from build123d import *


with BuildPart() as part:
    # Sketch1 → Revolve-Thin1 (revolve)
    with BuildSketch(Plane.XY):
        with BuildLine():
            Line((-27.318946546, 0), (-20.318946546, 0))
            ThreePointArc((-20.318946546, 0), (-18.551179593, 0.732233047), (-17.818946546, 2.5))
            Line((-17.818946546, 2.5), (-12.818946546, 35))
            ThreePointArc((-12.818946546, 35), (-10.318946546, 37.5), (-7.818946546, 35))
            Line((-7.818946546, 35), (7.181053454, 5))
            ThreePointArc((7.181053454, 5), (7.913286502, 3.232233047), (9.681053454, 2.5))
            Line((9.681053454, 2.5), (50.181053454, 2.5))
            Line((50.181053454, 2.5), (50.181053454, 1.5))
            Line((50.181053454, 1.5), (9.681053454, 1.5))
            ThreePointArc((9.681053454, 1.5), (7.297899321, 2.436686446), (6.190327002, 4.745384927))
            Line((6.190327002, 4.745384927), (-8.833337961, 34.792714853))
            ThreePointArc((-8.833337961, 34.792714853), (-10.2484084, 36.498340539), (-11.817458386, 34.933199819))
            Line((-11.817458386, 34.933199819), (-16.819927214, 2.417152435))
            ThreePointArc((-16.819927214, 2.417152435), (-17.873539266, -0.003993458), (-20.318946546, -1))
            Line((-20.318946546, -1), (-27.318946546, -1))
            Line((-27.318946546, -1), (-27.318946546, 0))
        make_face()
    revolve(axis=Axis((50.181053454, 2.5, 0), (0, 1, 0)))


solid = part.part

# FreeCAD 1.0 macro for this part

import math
import FreeCAD as App
import Part
import Sketcher

V = App.Vector
Q = App.Units.Quantity

doc = App.newDocument("Part")
body = doc.addObject("PartDesign::Body", "Body")

sketch1 = doc.addObject("Sketcher::SketchObject", "Sketch")
body.addObject(sketch1)
sketch1.AttachmentSupport = (doc.XY_Plane, [""])
sketch1.MapMode = "FlatFace"
sketch1.addGeometry([
    Part.LineSegment(V(-20.3, 0, 0), V(-27.3, 0, 0)),
    Part.LineSegment(V(-27.3, 0, 0), V(-27.3, -1, 0)),
    Part.LineSegment(V(-27.3, -1, 0), V(-20.3, -1, 0)),
    Part.ArcOfCircle(Part.Circle(V(-20.3, 2.5, 0), V(0, 0, 1), 3.5), math.radians(-90), math.radians(-1)),
    Part.LineSegment(V(-16.8, 2.4, 0), V(-11.8, 34.9, 0)),
    Part.ArcOfCircle(Part.Circle(V(-10.3, 35, 0), V(0, 0, 1), 1.5), math.radians(-8), math.radians(183)),
    Part.LineSegment(V(-8.8, 34.8, 0), V(6.2, 4.7, 0)),
    Part.ArcOfCircle(Part.Circle(V(9.7, 5, 0), V(0, 0, 1), 3.5), math.radians(-176), math.radians(-90)),
    Part.LineSegment(V(9.7, 1.5, 0), V(50.2, 1.5, 0)),
    Part.LineSegment(V(50.2, 1.5, 0), V(50.2, 2.5, 0)),
    Part.LineSegment(V(50.2, 2.5, 0), V(9.7, 2.5, 0)),
    Part.ArcOfCircle(Part.Circle(V(9.7, 5, 0), V(0, 0, 1), 2.5), math.radians(-180), math.radians(-90)),
    Part.LineSegment(V(7.2, 5, 0), V(-7.8, 35, 0)),
    Part.ArcOfCircle(Part.Circle(V(-10.3, 35, 0), V(0, 0, 1), 2.5), math.radians(0), math.radians(180)),
    Part.LineSegment(V(-12.8, 35, 0), V(-17.8, 2.5, 0)),
    Part.ArcOfCircle(Part.Circle(V(-20.3, 2.5, 0), V(0, 0, 1), 2.5), math.radians(-90), math.radians(0)),
], False)
sketch1.addGeometry(Part.LineSegment(V(50.2, -1, 0), V(50.2, 35, 0)), True)
sketch1.addConstraint([
    Sketcher.Constraint("Coincident", 0, 2, 1, 1),
    Sketcher.Constraint("Coincident", 1, 2, 2, 1),
    Sketcher.Constraint("Tangent", 2, 2, 3, 1),
    Sketcher.Constraint("Coincident", 3, 2, 4, 1),
    Sketcher.Constraint("Coincident", 4, 2, 5, 2),
    Sketcher.Constraint("Coincident", 5, 1, 6, 1),
    Sketcher.Constraint("Coincident", 6, 2, 7, 1),
    Sketcher.Constraint("Tangent", 7, 2, 8, 1),
    Sketcher.Constraint("Coincident", 8, 2, 9, 1),
    Sketcher.Constraint("Coincident", 9, 2, 10, 1),
    Sketcher.Constraint("Tangent", 10, 2, 11, 2),
    Sketcher.Constraint("Coincident", 11, 1, 12, 1),
    Sketcher.Constraint("Coincident", 12, 2, 13, 1),
    Sketcher.Constraint("Coincident", 13, 2, 14, 1),
    Sketcher.Constraint("Coincident", 14, 2, 15, 2),
    Sketcher.Constraint("Tangent", 15, 1, 0, 1),
    Sketcher.Constraint("Horizontal", 0),
    Sketcher.Constraint("Vertical", 1),
    Sketcher.Constraint("Horizontal", 2),
    Sketcher.Constraint("Horizontal", 8),
    Sketcher.Constraint("Vertical", 9),
    Sketcher.Constraint("Horizontal", 10),
    Sketcher.Constraint("Vertical", 16),
    Sketcher.Constraint("Coincident", 11, 3, 7, 3),
    Sketcher.Constraint("Coincident", 13, 3, 5, 3),
    Sketcher.Constraint("Coincident", 15, 3, 3, 3),
    Sketcher.Constraint("Equal", 3, 7),
    Sketcher.Constraint("Equal", 11, 13),
    Sketcher.Constraint("Equal", 13, 15),
    Sketcher.Constraint("PointOnObject", 0, 2, -1),
    Sketcher.Constraint("Parallel", 6, 12),
    Sketcher.Constraint("Parallel", 4, 14),
    Sketcher.Constraint("Horizontal", 15, 3, 9, 2),
    Sketcher.Constraint("Horizontal", 7, 3, 11, 1),
    Sketcher.Constraint("Horizontal", 13, 3, 12, 2),
    Sketcher.Constraint("Horizontal", 12, 2, 13, 2),
    Sketcher.Constraint("Horizontal", 10, 2, 14, 2),
    Sketcher.Constraint("Horizontal", 2, 2, 16, 1),
    Sketcher.Constraint("Horizontal", 13, 2, 16, 2),
    Sketcher.Constraint("Vertical", 9, 2, 16, 1),
    Sketcher.Constraint("Radius", 3, Q("3.5 mm")),
    Sketcher.Constraint("Radius", 5, Q("1.5 mm")),
    Sketcher.Constraint("Radius", 11, Q("2.5 mm")),
    Sketcher.Constraint("DistanceX", 0, 2, 0, 1, Q("7 mm")),
    Sketcher.Constraint("DistanceY", 16, 1, 16, 2, Q("36 mm")),
    Sketcher.Constraint("DistanceX", 8, 1, 8, 2, Q("40.5 mm")),
    Sketcher.Constraint("DistanceX", 3, 3, 5, 3, Q("10 mm")),
    Sketcher.Constraint("DistanceX", 3, 3, 7, 3, Q("30 mm")),
    Sketcher.Constraint("DistanceY", -1, 1, 4, 2, Q("34.9332 mm")),
    Sketcher.Constraint("DistanceX", 4, 2, -1, 1, Q("11.817458 mm")),
    Sketcher.Constraint("DistanceX", 5, 3, 5, 1, Q("1.485609 mm")),
])
revolution = doc.addObject("PartDesign::Revolution", "Revolution")
body.addObject(revolution)
revolution.Profile = sketch1
revolution.ReferenceAxis = (sketch1, ["Axis0"])
revolution.Angle = 360

doc.recompute()
